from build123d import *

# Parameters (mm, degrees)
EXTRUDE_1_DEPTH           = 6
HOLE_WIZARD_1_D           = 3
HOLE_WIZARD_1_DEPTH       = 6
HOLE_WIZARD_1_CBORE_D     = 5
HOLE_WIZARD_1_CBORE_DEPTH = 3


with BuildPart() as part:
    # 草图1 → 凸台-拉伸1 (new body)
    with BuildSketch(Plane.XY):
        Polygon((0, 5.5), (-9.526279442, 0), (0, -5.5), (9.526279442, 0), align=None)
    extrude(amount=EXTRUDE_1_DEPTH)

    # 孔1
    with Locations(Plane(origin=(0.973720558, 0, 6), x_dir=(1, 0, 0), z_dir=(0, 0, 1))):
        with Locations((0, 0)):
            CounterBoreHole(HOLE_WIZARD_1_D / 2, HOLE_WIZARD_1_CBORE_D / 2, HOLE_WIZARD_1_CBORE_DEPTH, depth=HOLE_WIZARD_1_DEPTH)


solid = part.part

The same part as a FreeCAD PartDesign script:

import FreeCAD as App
import Part
import Sketcher
Q = App.Units.Quantity


def add_polygon(sketch, points):
    """Adds a closed chain of lines whose ends are joined by coincident constraints."""
    first, n = sketch.GeometryCount, len(points)
    for a, b in zip(points, points[1:] + points[:1]):
        sketch.addGeometry(Part.LineSegment(App.Vector(*a, 0), App.Vector(*b, 0)), False)
    for i in range(n):
        sketch.addConstraint(Sketcher.Constraint("Coincident", first + i, 2, first + (i + 1) % n, 1))

doc = App.newDocument("Part")
body = doc.addObject("PartDesign::Body", "Body")

# Sketch on XY plane
sketch1 = body.newObject("Sketcher::SketchObject", "Sketch")
sketch1.AttachmentSupport = (doc.getObject("XY_Plane"), [""])
sketch1.MapMode = "FlatFace"
add_polygon(sketch1, [(0, 5.5), (-9.526279, 0), (0, -5.5), (9.526279, 0)])  # lines 0-3
sketch1.addConstraint([
    Sketcher.Constraint("Symmetric", 0, 2, 2, 2, -1, 1),
    Sketcher.Constraint("Symmetric", 1, 2, 3, 2, -1, 1),
    Sketcher.Constraint("PointOnObject", 0, 2, -1),
    Sketcher.Constraint("PointOnObject", 1, 2, -2),
    Sketcher.Constraint("Angle", 0, Q("-150 deg")),
    Sketcher.Constraint("Distance", 0, Q("11 mm")),
])
pad1 = body.newObject("PartDesign::Pad", "Pad")
pad1.Profile = sketch1
pad1.Length = 6

# Sketch on XY plane
sketch2 = body.newObject("Sketcher::SketchObject", "Sketch001")
sketch2.AttachmentSupport = (doc.getObject("XY_Plane"), [""])
sketch2.MapMode = "FlatFace"
sketch2.AttachmentOffset = App.Placement(App.Vector(0, 0, 6), App.Rotation())
sketch2.addGeometry(Part.Circle(App.Vector(0.973721, 0, 0), App.Vector(0, 0, 1), 1.5), False)
sketch2.addConstraint([
    Sketcher.Constraint("PointOnObject", 0, 3, -1),
    Sketcher.Constraint("Diameter", 0, Q("3 mm")),
    Sketcher.Constraint("DistanceX", -1, 1, 0, 3, Q("0.973721 mm")),
])
doc.recompute()
hole = body.newObject("PartDesign::Hole", "Hole")
hole.Profile = sketch2
hole.ThreadType = "None"
hole.Diameter = 3
hole.DepthType = "Dimension"
hole.Depth = 6
hole.DrillPoint = "Flat"
hole.HoleCutType = "Counterbore"
hole.HoleCutDiameter = 5
hole.HoleCutDepth = 3

doc.recompute()
